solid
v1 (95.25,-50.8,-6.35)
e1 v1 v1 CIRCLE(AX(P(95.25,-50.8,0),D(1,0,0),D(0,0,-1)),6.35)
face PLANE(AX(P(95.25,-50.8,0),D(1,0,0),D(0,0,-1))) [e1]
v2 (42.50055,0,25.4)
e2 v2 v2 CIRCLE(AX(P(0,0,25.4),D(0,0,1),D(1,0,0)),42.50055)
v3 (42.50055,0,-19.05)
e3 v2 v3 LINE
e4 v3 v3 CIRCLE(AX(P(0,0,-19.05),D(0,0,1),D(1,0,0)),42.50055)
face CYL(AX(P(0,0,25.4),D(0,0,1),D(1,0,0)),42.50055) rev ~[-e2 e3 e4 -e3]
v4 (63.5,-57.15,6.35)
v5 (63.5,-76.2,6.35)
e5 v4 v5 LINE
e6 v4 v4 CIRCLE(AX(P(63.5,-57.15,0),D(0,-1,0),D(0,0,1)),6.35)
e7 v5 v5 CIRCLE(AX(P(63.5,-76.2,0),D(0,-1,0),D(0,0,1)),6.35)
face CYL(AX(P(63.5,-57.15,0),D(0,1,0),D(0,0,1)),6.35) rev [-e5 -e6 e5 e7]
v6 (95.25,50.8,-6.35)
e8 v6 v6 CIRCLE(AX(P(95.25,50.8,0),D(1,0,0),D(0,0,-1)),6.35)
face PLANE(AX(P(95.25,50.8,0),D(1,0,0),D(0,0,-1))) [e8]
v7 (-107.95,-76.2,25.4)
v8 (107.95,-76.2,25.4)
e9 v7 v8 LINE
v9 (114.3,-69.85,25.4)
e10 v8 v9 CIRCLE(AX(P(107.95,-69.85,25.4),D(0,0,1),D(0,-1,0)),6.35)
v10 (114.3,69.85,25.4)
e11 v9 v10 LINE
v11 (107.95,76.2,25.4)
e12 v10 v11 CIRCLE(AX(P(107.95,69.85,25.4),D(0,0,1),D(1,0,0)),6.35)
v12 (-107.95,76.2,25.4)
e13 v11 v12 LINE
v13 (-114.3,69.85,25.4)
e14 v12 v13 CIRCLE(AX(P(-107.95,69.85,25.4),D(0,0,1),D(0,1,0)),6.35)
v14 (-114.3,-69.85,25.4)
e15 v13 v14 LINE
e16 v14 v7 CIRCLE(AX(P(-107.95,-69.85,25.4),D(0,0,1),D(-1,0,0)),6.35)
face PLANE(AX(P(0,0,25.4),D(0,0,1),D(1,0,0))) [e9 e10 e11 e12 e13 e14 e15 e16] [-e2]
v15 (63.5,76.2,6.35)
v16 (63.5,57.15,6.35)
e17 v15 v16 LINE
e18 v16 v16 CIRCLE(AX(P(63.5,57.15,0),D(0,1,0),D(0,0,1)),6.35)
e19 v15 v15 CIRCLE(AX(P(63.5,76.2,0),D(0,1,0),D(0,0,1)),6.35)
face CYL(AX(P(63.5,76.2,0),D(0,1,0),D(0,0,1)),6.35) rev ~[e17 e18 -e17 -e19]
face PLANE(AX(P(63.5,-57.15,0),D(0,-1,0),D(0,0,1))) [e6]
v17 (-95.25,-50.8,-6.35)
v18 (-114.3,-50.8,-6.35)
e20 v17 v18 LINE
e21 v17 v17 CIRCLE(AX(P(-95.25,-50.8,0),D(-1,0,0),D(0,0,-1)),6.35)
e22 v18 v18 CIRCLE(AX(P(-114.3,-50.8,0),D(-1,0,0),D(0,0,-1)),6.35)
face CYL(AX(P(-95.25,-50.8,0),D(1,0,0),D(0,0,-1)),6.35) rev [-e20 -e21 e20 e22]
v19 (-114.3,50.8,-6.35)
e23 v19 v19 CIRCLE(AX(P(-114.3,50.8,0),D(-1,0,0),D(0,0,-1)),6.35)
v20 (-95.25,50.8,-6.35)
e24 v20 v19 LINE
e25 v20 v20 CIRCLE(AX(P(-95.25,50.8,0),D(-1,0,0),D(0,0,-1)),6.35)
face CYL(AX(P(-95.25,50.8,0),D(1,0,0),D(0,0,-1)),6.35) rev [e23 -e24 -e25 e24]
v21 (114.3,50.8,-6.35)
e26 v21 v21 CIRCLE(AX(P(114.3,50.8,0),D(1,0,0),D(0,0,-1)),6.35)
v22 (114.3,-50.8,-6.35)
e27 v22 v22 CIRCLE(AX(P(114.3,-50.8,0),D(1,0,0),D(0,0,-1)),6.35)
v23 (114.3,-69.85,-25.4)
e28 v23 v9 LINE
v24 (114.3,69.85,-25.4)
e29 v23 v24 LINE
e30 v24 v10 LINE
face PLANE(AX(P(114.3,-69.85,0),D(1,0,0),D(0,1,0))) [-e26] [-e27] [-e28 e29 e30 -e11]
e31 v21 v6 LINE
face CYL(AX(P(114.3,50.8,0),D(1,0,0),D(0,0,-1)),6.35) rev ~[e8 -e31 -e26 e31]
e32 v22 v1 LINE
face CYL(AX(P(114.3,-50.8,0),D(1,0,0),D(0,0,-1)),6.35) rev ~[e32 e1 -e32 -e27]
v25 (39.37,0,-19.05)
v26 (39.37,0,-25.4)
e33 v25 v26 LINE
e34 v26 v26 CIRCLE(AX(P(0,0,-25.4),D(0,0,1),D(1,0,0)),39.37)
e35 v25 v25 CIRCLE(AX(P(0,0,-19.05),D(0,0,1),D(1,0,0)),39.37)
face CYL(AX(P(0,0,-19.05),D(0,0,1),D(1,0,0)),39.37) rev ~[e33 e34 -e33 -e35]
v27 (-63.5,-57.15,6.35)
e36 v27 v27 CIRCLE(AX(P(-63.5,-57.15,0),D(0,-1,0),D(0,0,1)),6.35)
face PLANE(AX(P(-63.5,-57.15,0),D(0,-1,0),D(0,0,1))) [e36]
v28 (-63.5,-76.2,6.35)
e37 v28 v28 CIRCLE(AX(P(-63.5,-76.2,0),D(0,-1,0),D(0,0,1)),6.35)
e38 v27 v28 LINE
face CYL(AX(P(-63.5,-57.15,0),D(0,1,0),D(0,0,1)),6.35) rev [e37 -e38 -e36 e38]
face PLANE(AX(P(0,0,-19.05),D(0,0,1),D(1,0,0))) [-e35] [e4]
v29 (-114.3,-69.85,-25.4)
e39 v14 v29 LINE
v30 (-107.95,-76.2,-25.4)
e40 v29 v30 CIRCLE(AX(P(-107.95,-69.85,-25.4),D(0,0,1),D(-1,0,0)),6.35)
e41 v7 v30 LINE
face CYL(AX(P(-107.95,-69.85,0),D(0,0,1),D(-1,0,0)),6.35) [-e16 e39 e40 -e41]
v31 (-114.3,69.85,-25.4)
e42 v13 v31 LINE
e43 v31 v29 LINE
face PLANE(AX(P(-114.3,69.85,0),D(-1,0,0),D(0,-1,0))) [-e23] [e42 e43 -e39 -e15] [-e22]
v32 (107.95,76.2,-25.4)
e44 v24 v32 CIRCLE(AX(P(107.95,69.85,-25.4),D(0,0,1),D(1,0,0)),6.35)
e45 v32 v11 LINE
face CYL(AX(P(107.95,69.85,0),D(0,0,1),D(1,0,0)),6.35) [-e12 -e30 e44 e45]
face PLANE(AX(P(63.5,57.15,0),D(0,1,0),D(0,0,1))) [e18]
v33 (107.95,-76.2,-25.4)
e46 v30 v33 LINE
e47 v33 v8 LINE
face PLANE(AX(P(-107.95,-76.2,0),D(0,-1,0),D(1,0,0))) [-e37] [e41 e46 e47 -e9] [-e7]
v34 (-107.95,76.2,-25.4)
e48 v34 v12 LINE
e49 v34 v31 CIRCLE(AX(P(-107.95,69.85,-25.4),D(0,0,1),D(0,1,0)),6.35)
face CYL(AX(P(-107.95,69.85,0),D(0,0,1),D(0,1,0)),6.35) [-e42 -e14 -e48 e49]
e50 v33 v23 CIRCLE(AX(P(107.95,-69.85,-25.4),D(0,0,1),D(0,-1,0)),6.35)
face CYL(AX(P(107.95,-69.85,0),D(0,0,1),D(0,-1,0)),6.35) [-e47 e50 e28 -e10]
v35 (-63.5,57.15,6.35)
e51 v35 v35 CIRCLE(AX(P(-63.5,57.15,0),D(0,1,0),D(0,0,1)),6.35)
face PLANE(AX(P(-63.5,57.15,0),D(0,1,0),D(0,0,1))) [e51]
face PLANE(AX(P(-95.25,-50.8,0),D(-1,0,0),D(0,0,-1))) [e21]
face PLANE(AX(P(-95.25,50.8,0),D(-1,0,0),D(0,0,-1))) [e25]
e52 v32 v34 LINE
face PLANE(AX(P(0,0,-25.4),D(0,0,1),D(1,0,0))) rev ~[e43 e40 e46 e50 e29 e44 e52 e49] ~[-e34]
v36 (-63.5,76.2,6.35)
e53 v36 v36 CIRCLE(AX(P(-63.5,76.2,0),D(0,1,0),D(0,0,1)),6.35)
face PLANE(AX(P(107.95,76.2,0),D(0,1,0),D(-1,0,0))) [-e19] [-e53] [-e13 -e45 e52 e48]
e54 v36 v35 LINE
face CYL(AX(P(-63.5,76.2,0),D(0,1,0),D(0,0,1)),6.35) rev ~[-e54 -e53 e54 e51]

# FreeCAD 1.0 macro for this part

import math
import FreeCAD as App
import Part
import Sketcher

V = App.Vector
Q = App.Units.Quantity

doc = App.newDocument("Part")
body = doc.addObject("PartDesign::Body", "Body")

# Sketch on XY plane
sketch1 = body.newObject("Sketcher::SketchObject", "Sketch")
sketch1.AttachmentSupport = (doc.getObject("XY_Plane"), [""])
sketch1.MapMode = "FlatFace"
sketch1.addGeometry([
    Part.LineSegment(V(-108, -76, 0), V(108, -76, 0)),  # 0
    Part.ArcOfCircle(Part.Circle(V(108, -70, 0), V(0, 0, 1), 6), math.radians(-90), math.radians(0)),  # 1
    Part.LineSegment(V(114, -70, 0), V(114, 70, 0)),  # 2
    Part.ArcOfCircle(Part.Circle(V(108, 70, 0), V(0, 0, 1), 6), math.radians(0), math.radians(90)),  # 3
    Part.LineSegment(V(108, 76, 0), V(-108, 76, 0)),  # 4
    Part.ArcOfCircle(Part.Circle(V(-108, 70, 0), V(0, 0, 1), 6), math.radians(90), math.radians(180)),  # 5
    Part.LineSegment(V(-114, 70, 0), V(-114, -70, 0)),  # 6
    Part.ArcOfCircle(Part.Circle(V(-108, -70, 0), V(0, 0, 1), 6), math.radians(180), math.radians(270)),  # 7
], False)
sketch1.addConstraint([
    Sketcher.Constraint("Tangent", 0, 2, 1, 1),
    Sketcher.Constraint("Tangent", 1, 2, 2, 1),
    Sketcher.Constraint("Tangent", 2, 2, 3, 1),
    Sketcher.Constraint("Tangent", 3, 2, 4, 1),
    Sketcher.Constraint("Tangent", 4, 2, 5, 1),
    Sketcher.Constraint("Tangent", 5, 2, 6, 1),
    Sketcher.Constraint("Tangent", 6, 2, 7, 1),
    Sketcher.Constraint("Tangent", 7, 2, 0, 1),
    Sketcher.Constraint("Horizontal", 0),
    Sketcher.Constraint("Vertical", 2),
    Sketcher.Constraint("Horizontal", 4),
    Sketcher.Constraint("Vertical", 6),
    Sketcher.Constraint("Equal", 1, 3),
    Sketcher.Constraint("Equal", 3, 5),
    Sketcher.Constraint("Equal", 5, 7),
    Sketcher.Constraint("Symmetric", 1, 3, 5, 3, -1, 1),
    Sketcher.Constraint("Radius", 1, Q("0.25 in")),
    Sketcher.Constraint("DistanceX", 0, 1, 0, 2, Q("8.5 in")),
    Sketcher.Constraint("DistanceY", 2, 1, 2, 2, Q("5.5 in")),
])
pad1 = body.newObject("PartDesign::Pad", "Pad")
pad1.Profile = sketch1
pad1.Length = Q("2 in")
pad1.Midplane = True

# Sketch on XY plane
sketch2 = body.newObject("Sketcher::SketchObject", "Sketch001")
sketch2.AttachmentSupport = (doc.getObject("XY_Plane"), [""])
sketch2.MapMode = "FlatFace"
sketch2.AttachmentOffset = App.Placement(V(0, 0, 1 * 25.4), App.Rotation())
sketch2.addGeometry(Part.Circle(V(0, 0, 0), V(0, 0, 1), 43), False)
sketch2.addConstraint([
    Sketcher.Constraint("Coincident", 0, 3, -1, 1),
    Sketcher.Constraint("Diameter", 0, Q("3.3465 in")),
])
pocket1 = body.newObject("PartDesign::Pocket", "Pocket")
pocket1.Profile = sketch2
pocket1.Length = Q("1.75 in")

# Sketch on XY plane
sketch3 = body.newObject("Sketcher::SketchObject", "Sketch002")
sketch3.AttachmentSupport = (doc.getObject("XY_Plane"), [""])
sketch3.MapMode = "FlatFace"
sketch3.AttachmentOffset = App.Placement(V(0, 0, -0.75 * 25.4), App.Rotation())
sketch3.addGeometry(Part.Circle(V(0, 0, 0), V(0, 0, 1), 39), False)
sketch3.addConstraint([
    Sketcher.Constraint("Coincident", 0, 3, -1, 1),
    Sketcher.Constraint("Diameter", 0, Q("3.1 in")),
])
pocket2 = body.newObject("PartDesign::Pocket", "Pocket001")
pocket2.Profile = sketch3
pocket2.Length = Q("1.25 in")

# Sketch on XZ plane
sketch4 = body.newObject("Sketcher::SketchObject", "Sketch003")
sketch4.AttachmentSupport = (doc.getObject("XZ_Plane"), [""])
sketch4.MapMode = "FlatFace"
sketch4.AttachmentOffset = App.Placement(V(0, 0, -3 * 25.4), App.Rotation())
sketch4.addGeometry([
    Part.Circle(V(-64, 0, 0), V(0, 0, 1), 6),
    Part.Circle(V(64, 0, 0), V(0, 0, 1), 6),
], False)
sketch4.addConstraint([
    Sketcher.Constraint("Equal", 0, 1),
    Sketcher.Constraint("Symmetric", 0, 3, 1, 3, -1, 1),
    Sketcher.Constraint("PointOnObject", 0, 3, -1),
    Sketcher.Constraint("Diameter", 0, Q("0.5 in")),
    Sketcher.Constraint("DistanceX", 0, 3, 1, 3, Q("5 in")),
])
pocket3 = body.newObject("PartDesign::Pocket", "Pocket002")
pocket3.Profile = sketch4
pocket3.Length = Q("0.75 in")
pocket3.Reversed = True

# Sketch on XZ plane
sketch5 = body.newObject("Sketcher::SketchObject", "Sketch004")
sketch5.AttachmentSupport = (doc.getObject("XZ_Plane"), [""])
sketch5.MapMode = "FlatFace"
sketch5.AttachmentOffset = App.Placement(V(0, 0, 2.25 * 25.4), App.Rotation())
sketch5.addGeometry([
    Part.Circle(V(-64, 0, 0), V(0, 0, 1), 6),
    Part.Circle(V(64, 0, 0), V(0, 0, 1), 6),
], False)
sketch5.addConstraint([
    Sketcher.Constraint("Equal", 0, 1),
    Sketcher.Constraint("Symmetric", 0, 3, 1, 3, -1, 1),
    Sketcher.Constraint("PointOnObject", 0, 3, -1),
    Sketcher.Constraint("Diameter", 0, Q("0.5 in")),
    Sketcher.Constraint("DistanceX", 0, 3, 1, 3, Q("5 in")),
])
pocket4 = body.newObject("PartDesign::Pocket", "Pocket003")
pocket4.Profile = sketch5
pocket4.Length = Q("0.75 in")
pocket4.Reversed = True

# Sketch on YZ plane
sketch6 = body.newObject("Sketcher::SketchObject", "Sketch005")
sketch6.AttachmentSupport = (doc.getObject("YZ_Plane"), [""])
sketch6.MapMode = "FlatFace"
sketch6.AttachmentOffset = App.Placement(V(0, 0, 4.5 * 25.4), App.Rotation())
sketch6.addGeometry([
    Part.Circle(V(51, 0, 0), V(0, 0, 1), 6),
    Part.Circle(V(-51, 0, 0), V(0, 0, 1), 6),
], False)
sketch6.addConstraint([
    Sketcher.Constraint("Equal", 0, 1),
    Sketcher.Constraint("Symmetric", 0, 3, 1, 3, -1, 1),
    Sketcher.Constraint("PointOnObject", 0, 3, -1),
    Sketcher.Constraint("Diameter", 0, Q("0.5 in")),
    Sketcher.Constraint("DistanceX", -1, 1, 0, 3, Q("2 in")),
])
pocket5 = body.newObject("PartDesign::Pocket", "Pocket004")
pocket5.Profile = sketch6
pocket5.Length = Q("0.75 in")

# Sketch on YZ plane
sketch7 = body.newObject("Sketcher::SketchObject", "Sketch006")
sketch7.AttachmentSupport = (doc.getObject("YZ_Plane"), [""])
sketch7.MapMode = "FlatFace"
sketch7.AttachmentOffset = App.Placement(V(0, 0, -3.75 * 25.4), App.Rotation())
sketch7.addGeometry([
    Part.Circle(V(51, 0, 0), V(0, 0, 1), 6),
    Part.Circle(V(-51, 0, 0), V(0, 0, 1), 6),
], False)
sketch7.addConstraint([
    Sketcher.Constraint("Equal", 0, 1),
    Sketcher.Constraint("Symmetric", 0, 3, 1, 3, -1, 1),
    Sketcher.Constraint("PointOnObject", 0, 3, -1),
    Sketcher.Constraint("Diameter", 0, Q("0.5 in")),
    Sketcher.Constraint("DistanceX", -1, 1, 0, 3, Q("2 in")),
])
pocket6 = body.newObject("PartDesign::Pocket", "Pocket005")
pocket6.Profile = sketch7
pocket6.Length = Q("0.75 in")

doc.recompute()
